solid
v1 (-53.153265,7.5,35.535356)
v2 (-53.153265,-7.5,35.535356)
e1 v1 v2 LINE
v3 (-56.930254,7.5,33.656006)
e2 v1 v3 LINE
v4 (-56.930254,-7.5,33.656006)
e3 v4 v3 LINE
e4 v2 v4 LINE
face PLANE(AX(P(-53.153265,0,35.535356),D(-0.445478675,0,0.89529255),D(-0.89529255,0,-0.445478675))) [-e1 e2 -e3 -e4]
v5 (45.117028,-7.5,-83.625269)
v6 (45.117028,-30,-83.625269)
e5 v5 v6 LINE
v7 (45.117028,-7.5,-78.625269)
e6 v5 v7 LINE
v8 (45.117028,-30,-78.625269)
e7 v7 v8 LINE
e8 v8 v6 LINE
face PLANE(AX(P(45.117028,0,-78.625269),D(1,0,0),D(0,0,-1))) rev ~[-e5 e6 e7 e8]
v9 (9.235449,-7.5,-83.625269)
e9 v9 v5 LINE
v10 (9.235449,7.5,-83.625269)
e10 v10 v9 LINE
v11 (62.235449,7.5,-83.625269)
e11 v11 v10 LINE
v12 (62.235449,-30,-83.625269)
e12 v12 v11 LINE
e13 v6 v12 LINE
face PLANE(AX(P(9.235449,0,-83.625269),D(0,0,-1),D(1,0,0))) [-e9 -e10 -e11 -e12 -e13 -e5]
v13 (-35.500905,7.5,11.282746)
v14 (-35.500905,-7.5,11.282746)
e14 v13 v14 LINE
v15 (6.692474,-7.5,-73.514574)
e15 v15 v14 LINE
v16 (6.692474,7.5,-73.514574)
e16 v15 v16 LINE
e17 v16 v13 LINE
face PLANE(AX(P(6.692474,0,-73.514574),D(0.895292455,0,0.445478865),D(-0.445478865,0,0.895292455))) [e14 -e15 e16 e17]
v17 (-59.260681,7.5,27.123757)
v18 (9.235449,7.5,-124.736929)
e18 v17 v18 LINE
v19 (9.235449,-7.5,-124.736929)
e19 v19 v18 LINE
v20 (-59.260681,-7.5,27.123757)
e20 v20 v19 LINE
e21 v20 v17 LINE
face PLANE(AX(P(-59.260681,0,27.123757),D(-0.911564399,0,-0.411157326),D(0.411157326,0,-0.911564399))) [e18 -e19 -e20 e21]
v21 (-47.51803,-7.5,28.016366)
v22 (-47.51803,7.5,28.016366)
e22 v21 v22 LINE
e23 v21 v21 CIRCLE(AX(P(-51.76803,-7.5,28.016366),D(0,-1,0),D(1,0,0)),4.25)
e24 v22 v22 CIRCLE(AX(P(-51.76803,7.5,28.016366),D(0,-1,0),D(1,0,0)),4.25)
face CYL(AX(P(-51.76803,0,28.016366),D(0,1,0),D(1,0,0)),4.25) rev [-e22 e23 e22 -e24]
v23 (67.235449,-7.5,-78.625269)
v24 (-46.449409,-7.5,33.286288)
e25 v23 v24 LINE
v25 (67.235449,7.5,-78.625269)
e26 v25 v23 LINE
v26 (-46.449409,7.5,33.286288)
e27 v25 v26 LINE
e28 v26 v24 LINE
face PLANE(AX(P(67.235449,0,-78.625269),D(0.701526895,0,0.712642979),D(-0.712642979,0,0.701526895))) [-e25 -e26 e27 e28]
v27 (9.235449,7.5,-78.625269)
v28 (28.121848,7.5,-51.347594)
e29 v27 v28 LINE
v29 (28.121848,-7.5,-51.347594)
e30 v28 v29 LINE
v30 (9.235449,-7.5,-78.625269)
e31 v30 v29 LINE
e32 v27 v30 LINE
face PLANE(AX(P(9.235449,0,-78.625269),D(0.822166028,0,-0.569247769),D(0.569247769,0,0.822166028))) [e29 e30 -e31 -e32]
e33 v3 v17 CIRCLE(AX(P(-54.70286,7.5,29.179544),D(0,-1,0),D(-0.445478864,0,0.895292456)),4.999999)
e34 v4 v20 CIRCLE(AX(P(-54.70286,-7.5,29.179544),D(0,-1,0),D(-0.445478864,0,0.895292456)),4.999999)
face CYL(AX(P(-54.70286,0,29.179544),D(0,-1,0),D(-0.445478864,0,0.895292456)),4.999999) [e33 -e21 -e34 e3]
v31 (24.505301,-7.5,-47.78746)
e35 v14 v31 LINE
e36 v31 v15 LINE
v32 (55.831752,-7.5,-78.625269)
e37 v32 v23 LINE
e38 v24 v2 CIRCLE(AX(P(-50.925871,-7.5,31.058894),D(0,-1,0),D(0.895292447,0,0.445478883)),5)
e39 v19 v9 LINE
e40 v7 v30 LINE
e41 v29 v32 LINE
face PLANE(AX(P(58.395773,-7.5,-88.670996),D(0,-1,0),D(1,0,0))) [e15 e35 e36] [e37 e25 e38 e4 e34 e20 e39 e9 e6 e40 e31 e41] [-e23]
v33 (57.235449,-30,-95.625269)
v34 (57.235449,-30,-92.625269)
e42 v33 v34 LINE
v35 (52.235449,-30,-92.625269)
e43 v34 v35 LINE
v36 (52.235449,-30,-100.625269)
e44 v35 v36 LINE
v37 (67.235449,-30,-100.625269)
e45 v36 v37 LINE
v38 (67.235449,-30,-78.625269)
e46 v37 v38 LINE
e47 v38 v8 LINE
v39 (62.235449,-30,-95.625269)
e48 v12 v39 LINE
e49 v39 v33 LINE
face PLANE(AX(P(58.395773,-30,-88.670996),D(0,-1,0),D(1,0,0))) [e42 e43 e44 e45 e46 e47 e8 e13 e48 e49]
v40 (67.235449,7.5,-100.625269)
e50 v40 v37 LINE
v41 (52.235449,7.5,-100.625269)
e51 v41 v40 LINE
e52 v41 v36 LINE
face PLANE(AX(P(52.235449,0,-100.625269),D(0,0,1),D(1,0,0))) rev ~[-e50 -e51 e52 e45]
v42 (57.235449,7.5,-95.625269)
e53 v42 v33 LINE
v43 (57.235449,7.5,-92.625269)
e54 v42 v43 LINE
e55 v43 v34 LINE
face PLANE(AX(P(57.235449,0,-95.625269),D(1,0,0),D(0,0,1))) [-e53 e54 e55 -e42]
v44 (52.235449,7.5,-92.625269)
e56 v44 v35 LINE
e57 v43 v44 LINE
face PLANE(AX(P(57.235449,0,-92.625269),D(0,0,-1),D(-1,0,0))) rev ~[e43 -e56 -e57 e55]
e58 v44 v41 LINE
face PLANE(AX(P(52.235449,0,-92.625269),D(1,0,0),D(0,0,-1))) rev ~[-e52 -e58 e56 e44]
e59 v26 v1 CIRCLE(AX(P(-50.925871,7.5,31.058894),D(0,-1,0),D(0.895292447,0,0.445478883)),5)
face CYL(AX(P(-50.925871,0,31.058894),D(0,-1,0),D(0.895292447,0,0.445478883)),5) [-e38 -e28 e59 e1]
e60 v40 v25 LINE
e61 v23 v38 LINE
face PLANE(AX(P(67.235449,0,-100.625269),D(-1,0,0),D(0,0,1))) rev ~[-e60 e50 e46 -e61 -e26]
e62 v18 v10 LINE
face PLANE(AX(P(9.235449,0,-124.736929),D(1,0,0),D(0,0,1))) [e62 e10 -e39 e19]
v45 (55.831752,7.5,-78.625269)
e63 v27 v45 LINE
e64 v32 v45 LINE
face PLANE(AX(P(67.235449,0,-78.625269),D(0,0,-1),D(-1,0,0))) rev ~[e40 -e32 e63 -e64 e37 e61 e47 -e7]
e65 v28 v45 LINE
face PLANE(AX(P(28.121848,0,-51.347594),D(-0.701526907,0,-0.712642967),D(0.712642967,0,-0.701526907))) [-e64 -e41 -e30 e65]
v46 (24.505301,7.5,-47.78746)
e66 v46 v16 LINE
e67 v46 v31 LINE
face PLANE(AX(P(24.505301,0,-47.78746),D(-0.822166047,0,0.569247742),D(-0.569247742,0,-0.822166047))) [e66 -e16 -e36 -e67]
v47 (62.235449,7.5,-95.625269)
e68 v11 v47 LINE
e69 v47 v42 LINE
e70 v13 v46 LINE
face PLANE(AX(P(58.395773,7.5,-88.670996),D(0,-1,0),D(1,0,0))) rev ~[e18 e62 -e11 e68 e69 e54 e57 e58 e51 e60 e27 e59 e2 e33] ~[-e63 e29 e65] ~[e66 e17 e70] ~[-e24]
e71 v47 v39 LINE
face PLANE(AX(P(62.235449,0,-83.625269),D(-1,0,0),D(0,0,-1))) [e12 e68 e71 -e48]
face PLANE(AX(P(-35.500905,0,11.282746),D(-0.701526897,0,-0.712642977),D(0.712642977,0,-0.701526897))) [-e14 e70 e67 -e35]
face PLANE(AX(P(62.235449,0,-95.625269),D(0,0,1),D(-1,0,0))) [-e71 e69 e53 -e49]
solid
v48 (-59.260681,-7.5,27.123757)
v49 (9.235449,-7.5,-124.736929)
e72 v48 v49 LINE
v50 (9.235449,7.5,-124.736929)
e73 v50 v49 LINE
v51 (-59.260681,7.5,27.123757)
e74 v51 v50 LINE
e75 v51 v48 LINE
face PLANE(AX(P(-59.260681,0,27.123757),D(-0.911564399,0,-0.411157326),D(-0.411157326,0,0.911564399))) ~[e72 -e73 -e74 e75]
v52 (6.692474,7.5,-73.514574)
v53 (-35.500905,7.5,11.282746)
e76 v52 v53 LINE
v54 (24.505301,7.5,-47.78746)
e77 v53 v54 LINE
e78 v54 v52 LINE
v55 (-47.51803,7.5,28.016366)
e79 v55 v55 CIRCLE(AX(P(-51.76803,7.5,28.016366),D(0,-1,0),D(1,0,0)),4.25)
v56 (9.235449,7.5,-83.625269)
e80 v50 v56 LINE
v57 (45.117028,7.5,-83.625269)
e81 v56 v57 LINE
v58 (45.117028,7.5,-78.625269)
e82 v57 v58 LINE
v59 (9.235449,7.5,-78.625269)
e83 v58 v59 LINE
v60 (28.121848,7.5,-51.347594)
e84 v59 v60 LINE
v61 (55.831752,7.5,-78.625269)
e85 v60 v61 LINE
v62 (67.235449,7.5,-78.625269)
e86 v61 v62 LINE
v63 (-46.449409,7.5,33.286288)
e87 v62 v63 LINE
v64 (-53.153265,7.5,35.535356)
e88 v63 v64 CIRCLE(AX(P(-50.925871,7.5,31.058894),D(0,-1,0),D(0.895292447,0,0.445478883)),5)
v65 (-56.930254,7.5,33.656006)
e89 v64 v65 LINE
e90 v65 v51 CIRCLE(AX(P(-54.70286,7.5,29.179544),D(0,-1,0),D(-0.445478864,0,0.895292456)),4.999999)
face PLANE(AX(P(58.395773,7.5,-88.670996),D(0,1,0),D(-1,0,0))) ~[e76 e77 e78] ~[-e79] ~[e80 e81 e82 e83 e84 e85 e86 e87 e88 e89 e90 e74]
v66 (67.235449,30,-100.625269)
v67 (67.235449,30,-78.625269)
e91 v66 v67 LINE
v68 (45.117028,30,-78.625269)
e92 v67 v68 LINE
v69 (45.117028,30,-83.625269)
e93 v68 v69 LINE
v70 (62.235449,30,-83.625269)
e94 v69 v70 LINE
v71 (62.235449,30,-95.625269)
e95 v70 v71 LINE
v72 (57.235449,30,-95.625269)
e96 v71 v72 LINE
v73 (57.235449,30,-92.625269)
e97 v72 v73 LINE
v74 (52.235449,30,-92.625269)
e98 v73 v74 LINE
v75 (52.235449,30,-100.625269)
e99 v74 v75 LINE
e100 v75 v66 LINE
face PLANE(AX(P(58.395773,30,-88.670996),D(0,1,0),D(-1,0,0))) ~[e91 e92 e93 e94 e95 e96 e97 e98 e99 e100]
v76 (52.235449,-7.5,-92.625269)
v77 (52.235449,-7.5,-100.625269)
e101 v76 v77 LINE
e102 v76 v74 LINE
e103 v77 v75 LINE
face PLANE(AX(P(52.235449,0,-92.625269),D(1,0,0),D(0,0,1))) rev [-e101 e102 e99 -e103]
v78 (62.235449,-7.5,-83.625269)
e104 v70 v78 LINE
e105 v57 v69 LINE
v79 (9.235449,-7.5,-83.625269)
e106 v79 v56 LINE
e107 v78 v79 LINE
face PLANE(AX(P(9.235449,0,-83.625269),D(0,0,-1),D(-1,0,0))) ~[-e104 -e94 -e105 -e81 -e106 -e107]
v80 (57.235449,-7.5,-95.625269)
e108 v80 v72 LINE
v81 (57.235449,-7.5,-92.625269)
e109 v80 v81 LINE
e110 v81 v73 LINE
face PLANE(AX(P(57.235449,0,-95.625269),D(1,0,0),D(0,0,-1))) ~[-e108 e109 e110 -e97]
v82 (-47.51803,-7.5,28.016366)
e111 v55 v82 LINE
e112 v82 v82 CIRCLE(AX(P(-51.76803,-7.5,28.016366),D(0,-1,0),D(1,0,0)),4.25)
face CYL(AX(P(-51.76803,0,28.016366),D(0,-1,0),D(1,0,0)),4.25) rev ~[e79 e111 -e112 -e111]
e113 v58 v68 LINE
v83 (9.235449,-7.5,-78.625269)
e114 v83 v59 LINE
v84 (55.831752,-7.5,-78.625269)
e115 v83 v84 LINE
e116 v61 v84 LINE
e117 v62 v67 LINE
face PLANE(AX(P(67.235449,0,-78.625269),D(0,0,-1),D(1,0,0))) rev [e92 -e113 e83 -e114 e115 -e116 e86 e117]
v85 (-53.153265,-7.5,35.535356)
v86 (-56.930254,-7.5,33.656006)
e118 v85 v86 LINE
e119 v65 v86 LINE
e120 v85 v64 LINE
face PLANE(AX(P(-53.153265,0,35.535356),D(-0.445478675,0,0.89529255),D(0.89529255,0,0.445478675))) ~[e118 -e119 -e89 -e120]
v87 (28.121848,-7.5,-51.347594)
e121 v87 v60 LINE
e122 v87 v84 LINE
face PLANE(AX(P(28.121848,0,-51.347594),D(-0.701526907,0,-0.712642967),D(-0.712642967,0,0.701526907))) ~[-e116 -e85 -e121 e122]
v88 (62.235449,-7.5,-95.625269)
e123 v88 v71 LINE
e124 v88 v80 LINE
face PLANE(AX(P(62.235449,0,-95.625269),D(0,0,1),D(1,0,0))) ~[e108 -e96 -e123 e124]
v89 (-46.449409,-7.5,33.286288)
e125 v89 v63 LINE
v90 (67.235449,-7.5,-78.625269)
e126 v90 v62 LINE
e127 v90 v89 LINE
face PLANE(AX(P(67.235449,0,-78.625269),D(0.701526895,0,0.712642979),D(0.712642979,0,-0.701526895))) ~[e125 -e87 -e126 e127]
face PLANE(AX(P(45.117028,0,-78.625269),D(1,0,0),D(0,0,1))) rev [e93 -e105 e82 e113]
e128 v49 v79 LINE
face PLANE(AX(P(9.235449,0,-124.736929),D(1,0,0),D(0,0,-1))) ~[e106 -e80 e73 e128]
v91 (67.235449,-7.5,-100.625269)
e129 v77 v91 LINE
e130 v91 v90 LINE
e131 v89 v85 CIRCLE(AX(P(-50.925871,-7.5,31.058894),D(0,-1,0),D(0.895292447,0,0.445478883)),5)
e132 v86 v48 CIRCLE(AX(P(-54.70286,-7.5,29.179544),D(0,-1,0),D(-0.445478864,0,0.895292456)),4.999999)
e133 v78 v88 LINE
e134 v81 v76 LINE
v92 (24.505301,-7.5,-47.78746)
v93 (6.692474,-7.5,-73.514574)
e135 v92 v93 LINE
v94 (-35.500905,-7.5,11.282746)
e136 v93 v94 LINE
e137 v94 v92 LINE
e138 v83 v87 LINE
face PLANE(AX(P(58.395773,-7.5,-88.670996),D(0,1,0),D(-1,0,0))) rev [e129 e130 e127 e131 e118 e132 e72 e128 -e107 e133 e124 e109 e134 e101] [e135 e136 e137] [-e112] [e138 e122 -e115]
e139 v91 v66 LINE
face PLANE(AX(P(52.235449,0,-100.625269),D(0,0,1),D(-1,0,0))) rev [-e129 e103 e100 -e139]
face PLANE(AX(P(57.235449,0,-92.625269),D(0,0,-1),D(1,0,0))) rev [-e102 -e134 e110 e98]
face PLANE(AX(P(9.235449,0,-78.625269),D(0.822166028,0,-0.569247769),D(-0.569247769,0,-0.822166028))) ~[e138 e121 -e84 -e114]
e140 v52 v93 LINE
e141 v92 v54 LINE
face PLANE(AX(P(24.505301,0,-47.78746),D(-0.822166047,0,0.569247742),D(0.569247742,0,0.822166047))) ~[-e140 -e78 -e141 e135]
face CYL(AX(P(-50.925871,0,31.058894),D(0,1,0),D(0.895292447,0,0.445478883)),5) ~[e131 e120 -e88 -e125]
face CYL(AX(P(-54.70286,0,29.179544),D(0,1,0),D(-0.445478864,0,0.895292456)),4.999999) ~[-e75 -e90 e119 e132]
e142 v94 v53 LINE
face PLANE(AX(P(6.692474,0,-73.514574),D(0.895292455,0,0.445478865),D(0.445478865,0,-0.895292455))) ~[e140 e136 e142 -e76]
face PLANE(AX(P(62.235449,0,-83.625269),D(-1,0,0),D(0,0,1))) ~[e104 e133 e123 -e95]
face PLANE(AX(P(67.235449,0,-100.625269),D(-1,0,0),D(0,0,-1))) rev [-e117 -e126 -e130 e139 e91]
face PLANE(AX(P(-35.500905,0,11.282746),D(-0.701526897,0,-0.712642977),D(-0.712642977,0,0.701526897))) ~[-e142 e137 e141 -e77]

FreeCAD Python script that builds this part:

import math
import FreeCAD as App
import Part
import Sketcher

V = App.Vector
Q = App.Units.Quantity

doc = App.newDocument("Part")
body = doc.addObject("PartDesign::Body", "Body")

sketch1 = body.newObject("Sketcher::SketchObject", "Sketch")
sketch1.AttachmentSupport = (doc.getObject("XZ_Plane"), [""])
sketch1.MapMode = "FlatFace"
sketch1.addGeometry([
    Part.LineSegment(V(9.235449, -124.736929, 0), V(9.235449, -83.625269, 0)),
    Part.LineSegment(V(9.235449, -83.625269, 0), V(45.117028, -83.625269, 0)),
    Part.LineSegment(V(45.117028, -83.625269, 0), V(45.117028, -78.625269, 0)),
    Part.LineSegment(V(45.117028, -78.625269, 0), V(9.235449, -78.625269, 0)),
    Part.LineSegment(V(9.235449, -78.625269, 0), V(28.121848, -51.347594, 0)),
    Part.LineSegment(V(28.121848, -51.347594, 0), V(55.831752, -78.625269, 0)),
    Part.LineSegment(V(55.831752, -78.625269, 0), V(67.235449, -78.625269, 0)),
    Part.LineSegment(V(67.235449, -78.625269, 0), V(-46.449409, 33.286288, 0)),
    Part.ArcOfCircle(Part.Circle(V(-50.925871, 31.058894, 0), V(0, 0, 1), 5), math.radians(26.453982), math.radians(116.453976)),
    Part.LineSegment(V(-53.153265, 35.535356, 0), V(-56.930254, 33.656006, 0)),
    Part.ArcOfCircle(Part.Circle(V(-54.70286, 29.179544, 0), V(0, 0, 1), 4.999999), math.radians(116.45398), math.radians(204.277568)),
    Part.LineSegment(V(-59.260681, 27.123757, 0), V(9.235449, -124.736929, 0)),
    Part.LineSegment(V(6.692474, -73.514574, 0), V(-35.500905, 11.282746, 0)),
    Part.LineSegment(V(-35.500905, 11.282746, 0), V(24.505301, -47.78746, 0)),
    Part.LineSegment(V(24.505301, -47.78746, 0), V(6.692474, -73.514574, 0)),
    Part.Circle(V(-51.76803, 28.016366, 0), V(0, 0, 1), 4.25),
], False)
sketch1.addConstraint([
    Sketcher.Constraint("Coincident", 0, 2, 1, 1),
    Sketcher.Constraint("Coincident", 1, 2, 2, 1),
    Sketcher.Constraint("Coincident", 2, 2, 3, 1),
    Sketcher.Constraint("Coincident", 3, 2, 4, 1),
    Sketcher.Constraint("Coincident", 4, 2, 5, 1),
    Sketcher.Constraint("Coincident", 5, 2, 6, 1),
    Sketcher.Constraint("Coincident", 6, 2, 7, 1),
    Sketcher.Constraint("Coincident", 7, 2, 8, 1),
    Sketcher.Constraint("Coincident", 8, 2, 9, 1),
    Sketcher.Constraint("Coincident", 9, 2, 10, 1),
    Sketcher.Constraint("Coincident", 10, 2, 11, 1),
    Sketcher.Constraint("Coincident", 11, 2, 0, 1),
    Sketcher.Constraint("Coincident", 12, 2, 13, 1),
    Sketcher.Constraint("Coincident", 13, 2, 14, 1),
    Sketcher.Constraint("Coincident", 14, 2, 12, 1),
    Sketcher.Constraint("Vertical", 0),
    Sketcher.Constraint("Horizontal", 1),
    Sketcher.Constraint("Vertical", 2),
    Sketcher.Constraint("Horizontal", 3),
    Sketcher.Constraint("Horizontal", 6),
    Sketcher.Constraint("Radius", 8, Q("5 mm")),
    Sketcher.Constraint("Radius", 10, Q("4.999999 mm")),
    Sketcher.Constraint("Diameter", 15, Q("8.5 mm")),
    Sketcher.Constraint("DistanceY", 2, 1, 2, 2, Q("5 mm")),
    Sketcher.Constraint("DistanceY", 1, 2, 5, 2, Q("5 mm")),
    Sketcher.Constraint("DistanceX", 3, 2, 6, 2, Q("58 mm")),
    Sketcher.Constraint("DistanceX", 1, 1, 1, 2, Q("35.881579 mm")),
    Sketcher.Constraint("DistanceX", 3, 2, 3, 1, Q("35.881579 mm")),
    Sketcher.Constraint("DistanceY", 0, 1, 0, 2, Q("41.11166 mm")),
    Sketcher.Constraint("DistanceX", -1, 1, 13, 2, Q("24.505301 mm")),
    Sketcher.Constraint("DistanceX", 8, 3, 1, 2, Q("96.042899 mm")),
    Sketcher.Constraint("DistanceX", 3, 2, 4, 2, Q("18.886399 mm")),
    Sketcher.Constraint("DistanceY", 10, 2, 8, 2, Q("8.411599 mm")),
    Sketcher.Constraint("DistanceY", 12, 2, 10, 3, Q("17.896798 mm")),
    Sketcher.Constraint("Distance", 4, Q("33.177818 mm")),
    Sketcher.Constraint("Distance", 5, Q("38.883291 mm")),
    Sketcher.Constraint("Distance", 9, Q("4.21872 mm")),
    Sketcher.Constraint("Distance", 11, Q("166.593481 mm")),
    Sketcher.Constraint("Distance", 12, Q("94.714659 mm")),
    Sketcher.Constraint("Distance", 13, Q("84.20234 mm")),
    Sketcher.Constraint("Distance", 14, Q("31.291871 mm")),
    Sketcher.Constraint("DistanceX", 8, 3, -1, 1, Q("50.925871 mm")),
    Sketcher.Constraint("DistanceX", 10, 3, -1, 1, Q("54.70286 mm")),
    Sketcher.Constraint("DistanceX", 15, 3, -1, 1, Q("51.76803 mm")),
    Sketcher.Constraint("DistanceY", 0, 2, -1, 1, Q("83.625269 mm")),
    Sketcher.Constraint("DistanceX", 7, 2, -1, 1, Q("46.449409 mm")),
    Sketcher.Constraint("DistanceX", 10, 2, -1, 1, Q("59.260681 mm")),
    Sketcher.Constraint("DistanceY", 13, 2, -1, 1, Q("47.78746 mm")),
    Sketcher.Constraint("DistanceY", 10, 3, 8, 3, Q("1.879349 mm")),
    Sketcher.Constraint("DistanceY", 15, 3, 10, 3, Q("1.163178 mm")),
])
pad1 = body.newObject("PartDesign::Pad", "Pad")
pad1.Profile = sketch1
pad1.Length = 15
pad1.Midplane = True

sketch2 = body.newObject("Sketcher::SketchObject", "Sketch001")
sketch2.AttachmentSupport = (doc.getObject("XZ_Plane"), [""])
sketch2.MapMode = "FlatFace"
sketch2.addGeometry([
    Part.LineSegment(V(62.235449, -83.625269, 0), V(62.235449, -95.625269, 0)),
    Part.LineSegment(V(62.235449, -95.625269, 0), V(57.235449, -95.625269, 0)),
    Part.LineSegment(V(57.235449, -95.625269, 0), V(57.235449, -92.625269, 0)),
    Part.LineSegment(V(57.235449, -92.625269, 0), V(52.235449, -92.625269, 0)),
    Part.LineSegment(V(52.235449, -92.625269, 0), V(52.235449, -100.625269, 0)),
    Part.LineSegment(V(52.235449, -100.625269, 0), V(67.235449, -100.625269, 0)),
    Part.LineSegment(V(67.235449, -100.625269, 0), V(67.235449, -78.625269, 0)),
    Part.LineSegment(V(67.235449, -78.625269, 0), V(9.235449, -78.625269, 0)),
    Part.LineSegment(V(9.235449, -78.625269, 0), V(6.692474, -73.514574, 0)),
    Part.LineSegment(V(6.692474, -73.514574, 0), V(-35.500905, 11.282746, 0)),
    Part.LineSegment(V(-35.500905, 11.282746, 0), V(-46.449409, 33.286288, 0)),
    Part.ArcOfCircle(Part.Circle(V(-50.925871, 31.058894, 0), V(0, 0, 1), 5), math.radians(26.453982), math.radians(116.453976)),
    Part.LineSegment(V(-53.153265, 35.535356, 0), V(-56.930254, 33.656006, 0)),
    Part.ArcOfCircle(Part.Circle(V(-54.70286, 29.179544, 0), V(0, 0, 1), 4.999999), math.radians(116.45398), math.radians(204.277568)),
    Part.LineSegment(V(-59.260681, 27.123757, 0), V(9.235449, -124.736929, 0)),
    Part.LineSegment(V(9.235449, -124.736929, 0), V(9.235449, -83.625269, 0)),
    Part.LineSegment(V(9.235449, -83.625269, 0), V(62.235449, -83.625269, 0)),
    Part.Circle(V(-51.76803, 28.016366, 0), V(0, 0, 1), 4.25),
], False)
sketch2.addConstraint([
    Sketcher.Constraint("Coincident", 0, 2, 1, 1),
    Sketcher.Constraint("Coincident", 1, 2, 2, 1),
    Sketcher.Constraint("Coincident", 2, 2, 3, 1),
    Sketcher.Constraint("Coincident", 3, 2, 4, 1),
    Sketcher.Constraint("Coincident", 4, 2, 5, 1),
    Sketcher.Constraint("Coincident", 5, 2, 6, 1),
    Sketcher.Constraint("Coincident", 6, 2, 7, 1),
    Sketcher.Constraint("Coincident", 7, 2, 8, 1),
    Sketcher.Constraint("Coincident", 8, 2, 9, 1),
    Sketcher.Constraint("Coincident", 9, 2, 10, 1),
    Sketcher.Constraint("Tangent", 10, 2, 11, 1),
    Sketcher.Constraint("Tangent", 11, 2, 12, 1),
    Sketcher.Constraint("Tangent", 12, 2, 13, 1),
    Sketcher.Constraint("Tangent", 13, 2, 14, 1),
    Sketcher.Constraint("Coincident", 14, 2, 15, 1),
    Sketcher.Constraint("Coincident", 15, 2, 16, 1),
    Sketcher.Constraint("Coincident", 16, 2, 0, 1),
    Sketcher.Constraint("Vertical", 0),
    Sketcher.Constraint("Horizontal", 1),
    Sketcher.Constraint("Vertical", 2),
    Sketcher.Constraint("Horizontal", 3),
    Sketcher.Constraint("Vertical", 4),
    Sketcher.Constraint("Horizontal", 5),
    Sketcher.Constraint("Vertical", 6),
    Sketcher.Constraint("Horizontal", 7),
    Sketcher.Constraint("Vertical", 15),
    Sketcher.Constraint("Horizontal", 16),
    Sketcher.Constraint("Equal", 11, 13),
    Sketcher.Constraint("Parallel", 8, 9),
    Sketcher.Constraint("Parallel", 9, 10),
    Sketcher.Constraint("Perpendicular", 10, 12),
    Sketcher.Constraint("Vertical", 7, 2, 14, 2),
    Sketcher.Constraint("Equal", 1, 3),
    Sketcher.Constraint("Radius", 11, Q("5 mm")),
    Sketcher.Constraint("Diameter", 17, Q("8.5 mm")),
    Sketcher.Constraint("DistanceX", 1, 2, 1, 1, Q("5 mm")),
    Sketcher.Constraint("DistanceX", 5, 1, 5, 2, Q("15 mm")),
    Sketcher.Constraint("DistanceX", 7, 2, 7, 1, Q("58 mm")),
    Sketcher.Constraint("DistanceY", 0, 2, 0, 1, Q("12 mm")),
    Sketcher.Constraint("DistanceY", 2, 1, 2, 2, Q("3 mm")),
    Sketcher.Constraint("DistanceY", 4, 2, 4, 1, Q("8 mm")),
    Sketcher.Constraint("DistanceY", 6, 1, 6, 2, Q("22 mm")),
    Sketcher.Constraint("DistanceY", 15, 1, 15, 2, Q("41.11166 mm")),
    Sketcher.Constraint("DistanceY", 9, 2, 13, 3, Q("17.896798 mm")),
    Sketcher.Constraint("DistanceY", 13, 2, 11, 2, Q("8.411599 mm")),
    Sketcher.Constraint("Distance", 8, Q("5.708408 mm")),
    Sketcher.Constraint("Distance", 9, Q("94.714659 mm")),
    Sketcher.Constraint("Distance", 12, Q("4.21872 mm")),
    Sketcher.Constraint("DistanceX", 11, 3, -1, 1, Q("50.925871 mm")),
    Sketcher.Constraint("DistanceX", 17, 3, -1, 1, Q("51.76803 mm")),
    Sketcher.Constraint("DistanceY", 0, 2, -1, 1, Q("95.625269 mm")),
    Sketcher.Constraint("DistanceY", 17, 3, 13, 3, Q("1.163178 mm")),
])
pad2 = body.newObject("PartDesign::Pad", "Pad001")
pad2.Profile = sketch2
pad2.Length = 15
pad2.Midplane = True

sketch3 = body.newObject("Sketcher::SketchObject", "Sketch002")
sketch3.AttachmentSupport = (doc.getObject("XZ_Plane"), [""])
sketch3.MapMode = "FlatFace"
sketch3.addGeometry([
    Part.LineSegment(V(45.117028, -78.625269, 0), V(45.117028, -83.625269, 0)),
    Part.LineSegment(V(45.117028, -83.625269, 0), V(62.235449, -83.625269, 0)),
    Part.LineSegment(V(62.235449, -83.625269, 0), V(62.235449, -95.625269, 0)),
    Part.LineSegment(V(62.235449, -95.625269, 0), V(57.235449, -95.625269, 0)),
    Part.LineSegment(V(57.235449, -95.625269, 0), V(57.235449, -92.625269, 0)),
    Part.LineSegment(V(57.235449, -92.625269, 0), V(52.235449, -92.625269, 0)),
    Part.LineSegment(V(52.235449, -92.625269, 0), V(52.235449, -100.625269, 0)),
    Part.LineSegment(V(52.235449, -100.625269, 0), V(67.235449, -100.625269, 0)),
    Part.LineSegment(V(67.235449, -100.625269, 0), V(67.235449, -78.625269, 0)),
    Part.LineSegment(V(67.235449, -78.625269, 0), V(45.117028, -78.625269, 0)),
], False)
sketch3.addConstraint([
    Sketcher.Constraint("Coincident", 0, 2, 1, 1),
    Sketcher.Constraint("Coincident", 1, 2, 2, 1),
    Sketcher.Constraint("Coincident", 2, 2, 3, 1),
    Sketcher.Constraint("Coincident", 3, 2, 4, 1),
    Sketcher.Constraint("Coincident", 4, 2, 5, 1),
    Sketcher.Constraint("Coincident", 5, 2, 6, 1),
    Sketcher.Constraint("Coincident", 6, 2, 7, 1),
    Sketcher.Constraint("Coincident", 7, 2, 8, 1),
    Sketcher.Constraint("Coincident", 8, 2, 9, 1),
    Sketcher.Constraint("Coincident", 9, 2, 0, 1),
    Sketcher.Constraint("Vertical", 0),
    Sketcher.Constraint("Horizontal", 1),
    Sketcher.Constraint("Vertical", 2),
    Sketcher.Constraint("Horizontal", 3),
    Sketcher.Constraint("Vertical", 4),
    Sketcher.Constraint("Horizontal", 5),
    Sketcher.Constraint("Vertical", 6),
    Sketcher.Constraint("Horizontal", 7),
    Sketcher.Constraint("Vertical", 8),
    Sketcher.Constraint("Horizontal", 9),
    Sketcher.Constraint("Equal", 3, 5),
    Sketcher.Constraint("Equal", 5, 0),
    Sketcher.Constraint("DistanceX", 3, 2, 3, 1, Q("5 mm")),
    Sketcher.Constraint("DistanceX", 7, 1, 7, 2, Q("15 mm")),
    Sketcher.Constraint("DistanceY", 2, 2, 2, 1, Q("12 mm")),
    Sketcher.Constraint("DistanceY", 4, 1, 4, 2, Q("3 mm")),
    Sketcher.Constraint("DistanceY", 6, 2, 6, 1, Q("8 mm")),
    Sketcher.Constraint("DistanceX", 1, 1, 1, 2, Q("17.118421 mm")),
    Sketcher.Constraint("DistanceY", 0, 2, -1, 1, Q("83.625269 mm")),
    Sketcher.Constraint("DistanceX", -1, 1, 1, 2, Q("62.235449 mm")),
])
pad3 = body.newObject("PartDesign::Pad", "Pad002")
pad3.Profile = sketch3
pad3.Length = 30
body2 = doc.addObject("PartDesign::Body", "Body001")
doc.recompute()

mirroring = doc.addObject("Part::Mirroring", "Mirroring")
mirroring.Source = body
mirroring.Base = V(0, 0, 0)
mirroring.Normal = V(0, -1, 0)
body2.BaseFeature = mirroring
doc.recompute()
mirroring.Visibility = False

doc.recompute()
